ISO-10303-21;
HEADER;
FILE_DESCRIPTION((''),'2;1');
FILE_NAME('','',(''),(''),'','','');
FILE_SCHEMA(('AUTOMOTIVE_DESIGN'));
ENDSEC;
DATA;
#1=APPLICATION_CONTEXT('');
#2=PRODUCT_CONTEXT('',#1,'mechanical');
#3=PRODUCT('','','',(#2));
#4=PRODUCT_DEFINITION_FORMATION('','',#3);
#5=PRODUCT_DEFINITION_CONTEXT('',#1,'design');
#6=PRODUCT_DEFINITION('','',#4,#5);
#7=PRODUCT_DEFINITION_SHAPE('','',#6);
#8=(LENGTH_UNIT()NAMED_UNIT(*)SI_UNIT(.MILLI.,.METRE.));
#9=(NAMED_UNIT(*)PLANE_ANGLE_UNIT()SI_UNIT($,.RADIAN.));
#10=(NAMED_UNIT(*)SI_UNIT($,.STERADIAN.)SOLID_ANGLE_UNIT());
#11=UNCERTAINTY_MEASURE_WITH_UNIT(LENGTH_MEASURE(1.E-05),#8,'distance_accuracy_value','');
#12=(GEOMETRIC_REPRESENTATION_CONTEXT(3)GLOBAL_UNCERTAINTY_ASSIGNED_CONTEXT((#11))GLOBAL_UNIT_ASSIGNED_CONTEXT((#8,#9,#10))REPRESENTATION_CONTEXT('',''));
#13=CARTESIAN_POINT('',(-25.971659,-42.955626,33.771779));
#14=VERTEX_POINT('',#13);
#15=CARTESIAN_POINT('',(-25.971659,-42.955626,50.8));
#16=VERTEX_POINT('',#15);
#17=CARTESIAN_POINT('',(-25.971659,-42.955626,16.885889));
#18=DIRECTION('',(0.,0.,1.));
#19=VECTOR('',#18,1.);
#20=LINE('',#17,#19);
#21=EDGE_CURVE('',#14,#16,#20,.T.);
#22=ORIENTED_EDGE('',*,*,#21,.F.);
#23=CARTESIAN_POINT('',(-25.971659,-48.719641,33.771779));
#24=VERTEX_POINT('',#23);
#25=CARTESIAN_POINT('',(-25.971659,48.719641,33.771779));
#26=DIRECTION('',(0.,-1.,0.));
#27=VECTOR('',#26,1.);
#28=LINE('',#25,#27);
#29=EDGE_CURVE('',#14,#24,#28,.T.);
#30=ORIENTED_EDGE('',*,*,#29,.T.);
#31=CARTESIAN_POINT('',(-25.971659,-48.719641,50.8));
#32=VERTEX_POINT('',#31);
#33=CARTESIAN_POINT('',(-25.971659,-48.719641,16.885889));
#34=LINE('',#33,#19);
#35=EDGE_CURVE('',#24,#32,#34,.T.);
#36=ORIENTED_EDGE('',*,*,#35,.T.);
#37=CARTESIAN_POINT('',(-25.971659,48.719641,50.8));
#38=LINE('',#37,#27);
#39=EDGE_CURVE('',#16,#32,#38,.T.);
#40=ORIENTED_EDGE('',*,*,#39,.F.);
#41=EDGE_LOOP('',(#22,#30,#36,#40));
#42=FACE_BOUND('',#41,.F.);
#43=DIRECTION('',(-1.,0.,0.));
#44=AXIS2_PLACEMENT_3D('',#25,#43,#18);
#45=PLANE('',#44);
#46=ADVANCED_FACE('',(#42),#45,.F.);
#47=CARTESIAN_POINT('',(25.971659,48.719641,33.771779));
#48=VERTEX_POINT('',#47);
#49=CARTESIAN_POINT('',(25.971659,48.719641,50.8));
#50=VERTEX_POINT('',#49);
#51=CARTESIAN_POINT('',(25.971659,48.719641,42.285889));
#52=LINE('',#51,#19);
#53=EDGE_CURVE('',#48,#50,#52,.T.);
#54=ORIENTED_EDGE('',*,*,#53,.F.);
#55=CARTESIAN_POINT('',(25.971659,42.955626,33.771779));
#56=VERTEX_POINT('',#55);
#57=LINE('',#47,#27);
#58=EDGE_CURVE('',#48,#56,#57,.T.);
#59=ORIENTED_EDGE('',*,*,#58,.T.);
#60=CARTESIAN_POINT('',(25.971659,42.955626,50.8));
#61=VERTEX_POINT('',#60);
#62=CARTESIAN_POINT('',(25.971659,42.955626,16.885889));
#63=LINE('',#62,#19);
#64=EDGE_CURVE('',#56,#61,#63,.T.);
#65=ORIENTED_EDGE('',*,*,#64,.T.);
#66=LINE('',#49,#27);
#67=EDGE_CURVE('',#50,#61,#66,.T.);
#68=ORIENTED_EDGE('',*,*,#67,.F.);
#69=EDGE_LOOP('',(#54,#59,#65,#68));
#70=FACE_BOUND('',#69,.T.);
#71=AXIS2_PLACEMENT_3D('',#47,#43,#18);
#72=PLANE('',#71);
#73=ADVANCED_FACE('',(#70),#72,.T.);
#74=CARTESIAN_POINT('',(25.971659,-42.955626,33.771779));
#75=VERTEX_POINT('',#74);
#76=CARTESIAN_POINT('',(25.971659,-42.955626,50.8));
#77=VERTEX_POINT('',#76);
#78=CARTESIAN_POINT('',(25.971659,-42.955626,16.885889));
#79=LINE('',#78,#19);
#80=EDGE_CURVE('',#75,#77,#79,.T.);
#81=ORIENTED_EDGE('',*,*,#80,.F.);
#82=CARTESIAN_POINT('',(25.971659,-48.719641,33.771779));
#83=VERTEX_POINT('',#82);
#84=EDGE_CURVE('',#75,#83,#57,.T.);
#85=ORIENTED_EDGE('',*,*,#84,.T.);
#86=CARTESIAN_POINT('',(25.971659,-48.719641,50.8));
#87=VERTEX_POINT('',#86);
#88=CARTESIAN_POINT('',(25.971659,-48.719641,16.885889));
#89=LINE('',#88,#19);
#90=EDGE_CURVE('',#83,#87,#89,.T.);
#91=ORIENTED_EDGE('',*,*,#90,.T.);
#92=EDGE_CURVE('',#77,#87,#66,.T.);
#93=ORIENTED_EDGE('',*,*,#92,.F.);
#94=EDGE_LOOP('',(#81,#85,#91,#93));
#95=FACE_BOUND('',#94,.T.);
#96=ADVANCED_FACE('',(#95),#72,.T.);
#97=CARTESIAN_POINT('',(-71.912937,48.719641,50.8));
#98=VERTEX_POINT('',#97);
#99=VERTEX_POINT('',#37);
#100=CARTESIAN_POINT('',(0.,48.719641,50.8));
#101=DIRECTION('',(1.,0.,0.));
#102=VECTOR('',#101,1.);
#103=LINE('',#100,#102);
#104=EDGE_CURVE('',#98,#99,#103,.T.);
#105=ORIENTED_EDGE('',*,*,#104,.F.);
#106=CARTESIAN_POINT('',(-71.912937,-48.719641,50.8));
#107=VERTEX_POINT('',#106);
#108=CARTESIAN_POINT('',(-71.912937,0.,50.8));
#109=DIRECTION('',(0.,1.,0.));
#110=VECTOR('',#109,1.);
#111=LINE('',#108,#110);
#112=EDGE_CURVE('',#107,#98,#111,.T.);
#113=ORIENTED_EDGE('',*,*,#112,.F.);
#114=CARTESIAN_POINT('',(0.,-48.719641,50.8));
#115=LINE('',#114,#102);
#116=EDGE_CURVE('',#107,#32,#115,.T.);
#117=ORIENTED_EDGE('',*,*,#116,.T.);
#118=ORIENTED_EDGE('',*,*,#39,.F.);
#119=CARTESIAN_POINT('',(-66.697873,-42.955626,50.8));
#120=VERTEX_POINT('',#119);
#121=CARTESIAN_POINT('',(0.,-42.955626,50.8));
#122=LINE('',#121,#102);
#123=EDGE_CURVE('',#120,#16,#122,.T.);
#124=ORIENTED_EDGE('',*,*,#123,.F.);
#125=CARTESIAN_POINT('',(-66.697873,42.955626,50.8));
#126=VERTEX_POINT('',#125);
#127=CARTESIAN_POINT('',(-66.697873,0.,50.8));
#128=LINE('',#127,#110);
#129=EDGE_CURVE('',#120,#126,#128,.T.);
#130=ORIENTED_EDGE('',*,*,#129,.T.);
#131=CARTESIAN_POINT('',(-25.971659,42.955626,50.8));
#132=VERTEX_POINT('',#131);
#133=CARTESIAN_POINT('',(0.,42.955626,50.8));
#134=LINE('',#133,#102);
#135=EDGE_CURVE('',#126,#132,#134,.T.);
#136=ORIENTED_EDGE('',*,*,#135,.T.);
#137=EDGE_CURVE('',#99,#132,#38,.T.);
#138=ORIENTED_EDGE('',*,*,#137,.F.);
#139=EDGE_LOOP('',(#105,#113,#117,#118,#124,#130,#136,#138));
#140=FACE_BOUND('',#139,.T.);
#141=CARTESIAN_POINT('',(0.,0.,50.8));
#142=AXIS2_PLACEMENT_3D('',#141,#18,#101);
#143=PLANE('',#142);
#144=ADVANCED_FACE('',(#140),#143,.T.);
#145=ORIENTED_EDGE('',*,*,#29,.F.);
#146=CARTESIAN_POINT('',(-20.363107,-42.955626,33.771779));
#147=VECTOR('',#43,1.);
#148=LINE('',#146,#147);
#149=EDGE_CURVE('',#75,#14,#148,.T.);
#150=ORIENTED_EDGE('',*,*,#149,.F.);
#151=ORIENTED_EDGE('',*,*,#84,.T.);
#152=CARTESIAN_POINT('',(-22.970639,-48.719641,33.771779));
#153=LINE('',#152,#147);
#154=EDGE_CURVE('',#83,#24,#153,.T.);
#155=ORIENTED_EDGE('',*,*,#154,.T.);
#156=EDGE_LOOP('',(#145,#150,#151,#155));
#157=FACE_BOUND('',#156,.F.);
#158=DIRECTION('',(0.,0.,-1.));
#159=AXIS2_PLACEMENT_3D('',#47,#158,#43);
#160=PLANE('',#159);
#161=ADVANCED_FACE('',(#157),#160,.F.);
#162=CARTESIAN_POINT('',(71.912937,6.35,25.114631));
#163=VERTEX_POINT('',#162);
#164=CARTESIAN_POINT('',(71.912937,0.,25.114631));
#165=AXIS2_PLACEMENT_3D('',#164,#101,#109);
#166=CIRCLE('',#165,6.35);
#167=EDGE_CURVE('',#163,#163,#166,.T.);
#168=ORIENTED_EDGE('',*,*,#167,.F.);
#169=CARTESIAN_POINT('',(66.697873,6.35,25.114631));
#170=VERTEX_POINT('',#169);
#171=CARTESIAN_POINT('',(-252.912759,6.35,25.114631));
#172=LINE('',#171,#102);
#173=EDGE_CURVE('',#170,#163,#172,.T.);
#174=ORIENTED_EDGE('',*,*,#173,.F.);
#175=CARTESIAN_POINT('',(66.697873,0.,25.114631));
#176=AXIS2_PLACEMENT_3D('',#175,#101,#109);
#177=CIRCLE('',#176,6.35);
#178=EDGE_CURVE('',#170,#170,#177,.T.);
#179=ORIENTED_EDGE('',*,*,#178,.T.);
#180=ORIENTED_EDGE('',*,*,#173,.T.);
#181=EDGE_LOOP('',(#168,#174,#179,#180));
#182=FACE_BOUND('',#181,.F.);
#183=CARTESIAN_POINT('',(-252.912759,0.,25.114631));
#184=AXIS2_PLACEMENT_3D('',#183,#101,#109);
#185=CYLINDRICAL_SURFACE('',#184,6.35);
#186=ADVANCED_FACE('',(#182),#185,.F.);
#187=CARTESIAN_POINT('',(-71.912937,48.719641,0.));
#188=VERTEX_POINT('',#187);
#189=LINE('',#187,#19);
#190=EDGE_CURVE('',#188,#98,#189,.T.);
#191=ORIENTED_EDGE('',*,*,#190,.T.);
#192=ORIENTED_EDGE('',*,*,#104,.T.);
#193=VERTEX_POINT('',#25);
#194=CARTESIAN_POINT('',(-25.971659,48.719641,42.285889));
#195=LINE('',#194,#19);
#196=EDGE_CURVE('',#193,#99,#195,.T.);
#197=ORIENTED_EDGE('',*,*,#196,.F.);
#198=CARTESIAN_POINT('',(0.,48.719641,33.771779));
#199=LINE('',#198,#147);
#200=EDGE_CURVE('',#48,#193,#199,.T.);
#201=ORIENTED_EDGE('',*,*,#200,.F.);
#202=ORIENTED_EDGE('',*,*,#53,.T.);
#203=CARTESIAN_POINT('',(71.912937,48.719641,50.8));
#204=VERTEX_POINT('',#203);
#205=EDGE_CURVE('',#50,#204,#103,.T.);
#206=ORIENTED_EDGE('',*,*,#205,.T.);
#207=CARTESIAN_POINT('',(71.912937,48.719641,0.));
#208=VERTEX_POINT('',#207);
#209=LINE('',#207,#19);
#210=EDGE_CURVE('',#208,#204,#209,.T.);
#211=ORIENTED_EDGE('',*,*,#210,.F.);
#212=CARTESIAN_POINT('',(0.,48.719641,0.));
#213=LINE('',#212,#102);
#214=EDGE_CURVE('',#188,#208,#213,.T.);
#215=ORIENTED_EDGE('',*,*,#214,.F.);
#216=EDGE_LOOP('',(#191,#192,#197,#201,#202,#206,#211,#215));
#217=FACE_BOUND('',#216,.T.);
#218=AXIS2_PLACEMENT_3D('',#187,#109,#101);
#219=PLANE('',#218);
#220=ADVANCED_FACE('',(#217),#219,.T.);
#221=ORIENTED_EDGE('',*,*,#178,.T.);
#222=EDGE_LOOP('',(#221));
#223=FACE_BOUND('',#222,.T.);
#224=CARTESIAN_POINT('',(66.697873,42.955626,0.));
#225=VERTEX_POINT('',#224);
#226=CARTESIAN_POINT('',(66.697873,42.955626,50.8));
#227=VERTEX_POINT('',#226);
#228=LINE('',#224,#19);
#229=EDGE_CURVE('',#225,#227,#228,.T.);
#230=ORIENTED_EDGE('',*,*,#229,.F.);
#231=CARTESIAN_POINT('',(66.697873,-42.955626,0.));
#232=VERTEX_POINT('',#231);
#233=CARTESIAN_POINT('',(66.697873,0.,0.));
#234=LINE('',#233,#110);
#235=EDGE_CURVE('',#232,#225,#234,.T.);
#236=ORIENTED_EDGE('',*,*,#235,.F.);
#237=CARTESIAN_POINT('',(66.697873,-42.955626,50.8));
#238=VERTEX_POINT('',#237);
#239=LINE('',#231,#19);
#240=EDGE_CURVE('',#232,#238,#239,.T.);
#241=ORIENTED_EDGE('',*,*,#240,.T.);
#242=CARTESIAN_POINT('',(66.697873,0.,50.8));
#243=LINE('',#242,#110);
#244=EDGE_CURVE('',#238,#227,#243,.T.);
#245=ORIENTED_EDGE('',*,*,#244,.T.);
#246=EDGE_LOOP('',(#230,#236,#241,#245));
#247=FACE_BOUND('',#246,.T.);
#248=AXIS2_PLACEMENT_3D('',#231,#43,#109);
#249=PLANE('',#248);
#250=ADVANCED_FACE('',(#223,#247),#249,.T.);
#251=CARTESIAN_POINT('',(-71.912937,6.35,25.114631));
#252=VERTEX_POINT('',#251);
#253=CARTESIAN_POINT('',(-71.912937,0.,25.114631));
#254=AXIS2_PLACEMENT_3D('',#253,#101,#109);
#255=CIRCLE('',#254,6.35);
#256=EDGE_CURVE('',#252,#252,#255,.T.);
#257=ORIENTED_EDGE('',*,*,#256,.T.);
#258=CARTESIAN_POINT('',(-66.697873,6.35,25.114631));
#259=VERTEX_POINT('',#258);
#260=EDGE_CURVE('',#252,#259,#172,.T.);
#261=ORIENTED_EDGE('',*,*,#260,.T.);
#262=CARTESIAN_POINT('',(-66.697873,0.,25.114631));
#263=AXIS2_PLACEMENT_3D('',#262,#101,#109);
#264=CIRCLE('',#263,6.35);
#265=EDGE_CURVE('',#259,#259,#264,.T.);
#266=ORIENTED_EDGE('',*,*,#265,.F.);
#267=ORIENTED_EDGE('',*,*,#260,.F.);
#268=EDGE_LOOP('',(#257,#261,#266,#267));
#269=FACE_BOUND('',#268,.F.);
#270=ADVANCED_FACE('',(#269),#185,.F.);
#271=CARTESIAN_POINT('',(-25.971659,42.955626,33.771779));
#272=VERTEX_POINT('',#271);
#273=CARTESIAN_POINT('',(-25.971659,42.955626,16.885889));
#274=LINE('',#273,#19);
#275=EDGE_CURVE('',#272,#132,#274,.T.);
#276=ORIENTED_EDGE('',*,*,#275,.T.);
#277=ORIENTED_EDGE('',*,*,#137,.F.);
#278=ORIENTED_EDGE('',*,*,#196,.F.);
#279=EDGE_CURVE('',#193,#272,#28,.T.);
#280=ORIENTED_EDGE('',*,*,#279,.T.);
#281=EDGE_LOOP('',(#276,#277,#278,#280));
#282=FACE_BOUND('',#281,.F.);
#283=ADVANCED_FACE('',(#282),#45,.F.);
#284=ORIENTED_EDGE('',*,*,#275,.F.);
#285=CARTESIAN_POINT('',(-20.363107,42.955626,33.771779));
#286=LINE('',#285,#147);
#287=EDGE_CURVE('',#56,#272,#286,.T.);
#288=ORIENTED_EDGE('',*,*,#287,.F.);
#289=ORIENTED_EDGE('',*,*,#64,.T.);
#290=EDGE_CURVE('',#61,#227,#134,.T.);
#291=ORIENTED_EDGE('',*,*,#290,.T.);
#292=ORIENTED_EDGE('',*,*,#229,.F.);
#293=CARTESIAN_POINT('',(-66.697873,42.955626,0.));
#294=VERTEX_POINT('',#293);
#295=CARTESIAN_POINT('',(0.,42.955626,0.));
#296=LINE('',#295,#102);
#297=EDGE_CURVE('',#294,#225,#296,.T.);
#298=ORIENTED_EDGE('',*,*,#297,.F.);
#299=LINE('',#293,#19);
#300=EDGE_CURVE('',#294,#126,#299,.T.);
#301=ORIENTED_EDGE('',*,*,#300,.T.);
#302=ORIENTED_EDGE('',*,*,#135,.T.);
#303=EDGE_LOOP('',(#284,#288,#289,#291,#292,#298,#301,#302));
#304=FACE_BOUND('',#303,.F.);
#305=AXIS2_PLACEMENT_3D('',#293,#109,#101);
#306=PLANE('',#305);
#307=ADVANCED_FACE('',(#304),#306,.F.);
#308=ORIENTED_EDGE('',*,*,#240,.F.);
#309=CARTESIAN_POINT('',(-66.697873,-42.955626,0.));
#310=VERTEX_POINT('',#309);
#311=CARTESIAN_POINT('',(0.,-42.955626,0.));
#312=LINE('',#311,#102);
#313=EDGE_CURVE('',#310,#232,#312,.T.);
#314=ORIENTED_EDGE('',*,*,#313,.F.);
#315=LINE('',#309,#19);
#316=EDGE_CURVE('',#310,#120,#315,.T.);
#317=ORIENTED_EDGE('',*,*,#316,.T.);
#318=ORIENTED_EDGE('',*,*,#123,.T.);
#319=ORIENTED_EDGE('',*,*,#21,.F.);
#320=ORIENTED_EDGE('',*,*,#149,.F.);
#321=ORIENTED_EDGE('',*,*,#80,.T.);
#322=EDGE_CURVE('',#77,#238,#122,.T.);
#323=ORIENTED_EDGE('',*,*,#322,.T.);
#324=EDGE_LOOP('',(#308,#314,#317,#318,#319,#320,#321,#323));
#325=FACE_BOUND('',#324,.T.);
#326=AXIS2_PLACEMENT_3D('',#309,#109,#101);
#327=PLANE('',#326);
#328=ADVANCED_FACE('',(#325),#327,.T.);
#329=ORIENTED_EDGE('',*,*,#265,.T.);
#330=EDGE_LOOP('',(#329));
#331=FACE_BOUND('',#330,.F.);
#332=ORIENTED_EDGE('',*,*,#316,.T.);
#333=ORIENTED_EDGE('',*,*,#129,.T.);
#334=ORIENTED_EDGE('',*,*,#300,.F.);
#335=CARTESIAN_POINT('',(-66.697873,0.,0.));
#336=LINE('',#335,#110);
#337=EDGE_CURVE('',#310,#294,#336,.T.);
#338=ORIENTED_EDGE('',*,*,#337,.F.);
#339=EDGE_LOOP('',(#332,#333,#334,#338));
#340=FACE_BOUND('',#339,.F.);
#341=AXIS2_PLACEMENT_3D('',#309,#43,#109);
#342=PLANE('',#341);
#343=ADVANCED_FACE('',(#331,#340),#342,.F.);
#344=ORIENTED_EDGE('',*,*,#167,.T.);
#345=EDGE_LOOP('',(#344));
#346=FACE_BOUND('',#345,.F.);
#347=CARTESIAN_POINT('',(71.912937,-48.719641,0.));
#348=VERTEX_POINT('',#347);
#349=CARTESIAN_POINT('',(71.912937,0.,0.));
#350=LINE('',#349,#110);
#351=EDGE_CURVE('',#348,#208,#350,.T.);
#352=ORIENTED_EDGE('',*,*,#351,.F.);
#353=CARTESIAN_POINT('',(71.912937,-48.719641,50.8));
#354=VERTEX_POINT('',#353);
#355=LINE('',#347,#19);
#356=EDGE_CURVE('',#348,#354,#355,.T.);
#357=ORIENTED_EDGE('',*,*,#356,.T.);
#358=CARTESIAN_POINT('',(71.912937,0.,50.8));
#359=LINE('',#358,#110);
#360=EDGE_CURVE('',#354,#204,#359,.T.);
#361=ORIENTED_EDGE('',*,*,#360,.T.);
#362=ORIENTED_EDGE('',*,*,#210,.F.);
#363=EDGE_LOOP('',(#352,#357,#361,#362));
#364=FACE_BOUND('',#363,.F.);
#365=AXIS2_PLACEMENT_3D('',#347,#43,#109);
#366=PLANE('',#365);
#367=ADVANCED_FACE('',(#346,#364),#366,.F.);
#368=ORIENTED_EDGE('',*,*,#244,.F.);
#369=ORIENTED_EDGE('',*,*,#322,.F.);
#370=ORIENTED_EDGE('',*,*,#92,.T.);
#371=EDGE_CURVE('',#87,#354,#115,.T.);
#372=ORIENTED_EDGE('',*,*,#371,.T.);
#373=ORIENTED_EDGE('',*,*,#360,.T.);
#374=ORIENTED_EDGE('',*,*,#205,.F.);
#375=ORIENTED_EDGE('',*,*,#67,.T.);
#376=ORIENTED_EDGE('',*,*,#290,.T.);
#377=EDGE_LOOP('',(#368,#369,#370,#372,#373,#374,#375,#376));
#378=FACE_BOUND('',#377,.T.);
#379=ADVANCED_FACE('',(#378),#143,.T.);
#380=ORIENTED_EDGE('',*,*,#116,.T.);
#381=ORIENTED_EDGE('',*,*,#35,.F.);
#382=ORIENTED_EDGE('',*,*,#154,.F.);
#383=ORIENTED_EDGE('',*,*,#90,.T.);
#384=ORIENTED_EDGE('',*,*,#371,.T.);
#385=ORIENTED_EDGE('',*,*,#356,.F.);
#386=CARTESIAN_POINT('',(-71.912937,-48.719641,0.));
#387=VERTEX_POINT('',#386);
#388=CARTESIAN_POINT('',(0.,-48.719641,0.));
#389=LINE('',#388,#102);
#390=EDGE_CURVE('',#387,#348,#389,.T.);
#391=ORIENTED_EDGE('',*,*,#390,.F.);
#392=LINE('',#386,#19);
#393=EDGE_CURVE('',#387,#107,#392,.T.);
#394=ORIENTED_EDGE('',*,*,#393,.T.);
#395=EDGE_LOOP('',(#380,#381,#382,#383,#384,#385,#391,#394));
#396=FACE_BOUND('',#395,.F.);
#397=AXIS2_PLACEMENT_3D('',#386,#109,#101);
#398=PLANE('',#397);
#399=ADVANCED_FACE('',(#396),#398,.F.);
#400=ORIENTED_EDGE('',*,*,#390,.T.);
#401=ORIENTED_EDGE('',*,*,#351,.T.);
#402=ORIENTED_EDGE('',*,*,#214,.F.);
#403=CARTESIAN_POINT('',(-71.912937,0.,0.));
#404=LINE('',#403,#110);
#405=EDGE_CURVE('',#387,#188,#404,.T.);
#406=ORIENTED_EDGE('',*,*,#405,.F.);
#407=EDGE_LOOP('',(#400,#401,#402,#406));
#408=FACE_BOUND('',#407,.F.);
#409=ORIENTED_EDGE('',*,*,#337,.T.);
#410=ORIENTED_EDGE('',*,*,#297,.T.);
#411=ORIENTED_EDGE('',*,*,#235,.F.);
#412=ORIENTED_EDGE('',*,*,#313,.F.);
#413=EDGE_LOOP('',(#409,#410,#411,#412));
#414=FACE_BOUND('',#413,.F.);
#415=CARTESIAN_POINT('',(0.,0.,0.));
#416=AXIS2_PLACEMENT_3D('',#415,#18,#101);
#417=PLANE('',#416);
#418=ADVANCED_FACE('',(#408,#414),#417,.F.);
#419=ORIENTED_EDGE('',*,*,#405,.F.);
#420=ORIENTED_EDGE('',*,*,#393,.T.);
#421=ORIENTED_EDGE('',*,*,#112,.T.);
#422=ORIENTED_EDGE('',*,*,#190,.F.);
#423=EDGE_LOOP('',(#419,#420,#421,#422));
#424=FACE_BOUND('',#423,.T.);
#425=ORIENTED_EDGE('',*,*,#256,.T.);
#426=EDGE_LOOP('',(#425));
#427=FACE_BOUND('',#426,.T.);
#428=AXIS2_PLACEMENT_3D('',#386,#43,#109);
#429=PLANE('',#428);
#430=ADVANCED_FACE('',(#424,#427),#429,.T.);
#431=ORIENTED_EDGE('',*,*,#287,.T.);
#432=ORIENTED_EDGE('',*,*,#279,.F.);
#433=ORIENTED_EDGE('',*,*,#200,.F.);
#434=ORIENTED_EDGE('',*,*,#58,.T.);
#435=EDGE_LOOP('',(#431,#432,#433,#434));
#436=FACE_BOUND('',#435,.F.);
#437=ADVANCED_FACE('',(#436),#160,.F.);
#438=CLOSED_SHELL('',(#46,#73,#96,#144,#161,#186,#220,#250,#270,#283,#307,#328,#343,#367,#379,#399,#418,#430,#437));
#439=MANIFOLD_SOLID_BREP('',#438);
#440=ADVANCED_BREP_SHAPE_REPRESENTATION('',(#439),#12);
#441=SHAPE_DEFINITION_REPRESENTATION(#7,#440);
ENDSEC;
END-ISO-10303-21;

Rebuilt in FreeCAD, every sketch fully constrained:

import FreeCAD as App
import Part
import Sketcher

V = App.Vector
Q = App.Units.Quantity

doc = App.newDocument("Part")
body = doc.addObject("PartDesign::Body", "Body")

sketch1 = body.newObject("Sketcher::SketchObject", "Sketch")
sketch1.AttachmentSupport = (doc.getObject("XY_Plane"), [""])
sketch1.MapMode = "FlatFace"
sketch1.addGeometry([
    Part.LineSegment(V(-72, 49, 0), V(-72, -49, 0)),
    Part.LineSegment(V(-72, -49, 0), V(72, -49, 0)),
    Part.LineSegment(V(72, -49, 0), V(72, 49, 0)),
    Part.LineSegment(V(72, 49, 0), V(-72, 49, 0)),
    Part.LineSegment(V(67, -43, 0), V(-67, -43, 0)),
    Part.LineSegment(V(-67, -43, 0), V(-67, 43, 0)),
    Part.LineSegment(V(-67, 43, 0), V(67, 43, 0)),
    Part.LineSegment(V(67, 43, 0), V(67, -43, 0)),
], False)
sketch1.addConstraint([
    Sketcher.Constraint("Coincident", 0, 2, 1, 1),
    Sketcher.Constraint("Coincident", 1, 2, 2, 1),
    Sketcher.Constraint("Coincident", 2, 2, 3, 1),
    Sketcher.Constraint("Coincident", 3, 2, 0, 1),
    Sketcher.Constraint("Coincident", 4, 2, 5, 1),
    Sketcher.Constraint("Coincident", 5, 2, 6, 1),
    Sketcher.Constraint("Coincident", 6, 2, 7, 1),
    Sketcher.Constraint("Coincident", 7, 2, 4, 1),
    Sketcher.Constraint("Vertical", 0),
    Sketcher.Constraint("Horizontal", 1),
    Sketcher.Constraint("Vertical", 2),
    Sketcher.Constraint("Horizontal", 3),
    Sketcher.Constraint("Horizontal", 4),
    Sketcher.Constraint("Vertical", 5),
    Sketcher.Constraint("Horizontal", 6),
    Sketcher.Constraint("Vertical", 7),
    Sketcher.Constraint("Symmetric", 0, 2, 2, 2, -1, 1),
    Sketcher.Constraint("Symmetric", 4, 2, 6, 2, -1, 1),
    Sketcher.Constraint("DistanceY", 0, 2, 0, 1, Q("97.439282 mm")),
    Sketcher.Constraint("DistanceY", 5, 1, 5, 2, Q("85.911252 mm")),
    Sketcher.Constraint("DistanceX", 1, 1, 1, 2, Q("143.825874 mm")),
    Sketcher.Constraint("DistanceX", 4, 2, 4, 1, Q("133.395746 mm")),
])
pad1 = body.newObject("PartDesign::Pad", "Pad")
pad1.Profile = sketch1
pad1.Length = Q("2 in")

sketch2 = body.newObject("Sketcher::SketchObject", "Sketch001")
sketch2.AttachmentSupport = (doc.getObject("XZ_Plane"), [""])
sketch2.MapMode = "FlatFace"
sketch2.AttachmentOffset = App.Placement(V(0, 0, -48.719641), App.Rotation())
sketch2.addGeometry([
    Part.LineSegment(V(26, 51, 0), V(26, 34, 0)),
    Part.LineSegment(V(26, 34, 0), V(-26, 34, 0)),
    Part.LineSegment(V(-26, 34, 0), V(-26, 51, 0)),
    Part.LineSegment(V(-26, 51, 0), V(26, 51, 0)),
], False)
sketch2.addConstraint([
    Sketcher.Constraint("Coincident", 0, 2, 1, 1),
    Sketcher.Constraint("Coincident", 1, 2, 2, 1),
    Sketcher.Constraint("Coincident", 2, 2, 3, 1),
    Sketcher.Constraint("Coincident", 3, 2, 0, 1),
    Sketcher.Constraint("Vertical", 0),
    Sketcher.Constraint("Horizontal", 1),
    Sketcher.Constraint("Vertical", 2),
    Sketcher.Constraint("Horizontal", 3),
    Sketcher.Constraint("DistanceY", -1, 1, 2, 2, Q("2 in")),
    Sketcher.Constraint("DistanceY", 0, 2, 0, 1, Q("17.028221 mm")),
    Sketcher.Constraint("DistanceX", 1, 2, 1, 1, Q("51.943317 mm")),
    Sketcher.Constraint("DistanceX", -1, 1, 0, 2, Q("25.971659 mm")),
])
pocket1 = body.newObject("PartDesign::Pocket", "Pocket")
pocket1.Profile = sketch2
pocket1.Type = "ThroughAll"
pocket1.Reversed = True

sketch3 = body.newObject("Sketcher::SketchObject", "Sketch002")
sketch3.AttachmentSupport = (doc.getObject("YZ_Plane"), [""])
sketch3.MapMode = "FlatFace"
sketch3.AttachmentOffset = App.Placement(V(0, 0, -71.912937), App.Rotation())
sketch3.addGeometry(Part.Circle(V(0, 25, 0), V(0, 0, 1), 6), False)
sketch3.addConstraint([
    Sketcher.Constraint("PointOnObject", 0, 3, -2),
    Sketcher.Constraint("Diameter", 0, Q("0.5 in")),
    Sketcher.Constraint("DistanceY", -1, 1, 0, 3, Q("25.114631 mm")),
])
doc.recompute()
hole = body.newObject("PartDesign::Hole", "Hole")
hole.Profile = sketch3
hole.ThreadType = "None"
hole.Diameter = Q("0.5 in")
hole.DepthType = "ThroughAll"
hole.Reversed = True

doc.recompute()
